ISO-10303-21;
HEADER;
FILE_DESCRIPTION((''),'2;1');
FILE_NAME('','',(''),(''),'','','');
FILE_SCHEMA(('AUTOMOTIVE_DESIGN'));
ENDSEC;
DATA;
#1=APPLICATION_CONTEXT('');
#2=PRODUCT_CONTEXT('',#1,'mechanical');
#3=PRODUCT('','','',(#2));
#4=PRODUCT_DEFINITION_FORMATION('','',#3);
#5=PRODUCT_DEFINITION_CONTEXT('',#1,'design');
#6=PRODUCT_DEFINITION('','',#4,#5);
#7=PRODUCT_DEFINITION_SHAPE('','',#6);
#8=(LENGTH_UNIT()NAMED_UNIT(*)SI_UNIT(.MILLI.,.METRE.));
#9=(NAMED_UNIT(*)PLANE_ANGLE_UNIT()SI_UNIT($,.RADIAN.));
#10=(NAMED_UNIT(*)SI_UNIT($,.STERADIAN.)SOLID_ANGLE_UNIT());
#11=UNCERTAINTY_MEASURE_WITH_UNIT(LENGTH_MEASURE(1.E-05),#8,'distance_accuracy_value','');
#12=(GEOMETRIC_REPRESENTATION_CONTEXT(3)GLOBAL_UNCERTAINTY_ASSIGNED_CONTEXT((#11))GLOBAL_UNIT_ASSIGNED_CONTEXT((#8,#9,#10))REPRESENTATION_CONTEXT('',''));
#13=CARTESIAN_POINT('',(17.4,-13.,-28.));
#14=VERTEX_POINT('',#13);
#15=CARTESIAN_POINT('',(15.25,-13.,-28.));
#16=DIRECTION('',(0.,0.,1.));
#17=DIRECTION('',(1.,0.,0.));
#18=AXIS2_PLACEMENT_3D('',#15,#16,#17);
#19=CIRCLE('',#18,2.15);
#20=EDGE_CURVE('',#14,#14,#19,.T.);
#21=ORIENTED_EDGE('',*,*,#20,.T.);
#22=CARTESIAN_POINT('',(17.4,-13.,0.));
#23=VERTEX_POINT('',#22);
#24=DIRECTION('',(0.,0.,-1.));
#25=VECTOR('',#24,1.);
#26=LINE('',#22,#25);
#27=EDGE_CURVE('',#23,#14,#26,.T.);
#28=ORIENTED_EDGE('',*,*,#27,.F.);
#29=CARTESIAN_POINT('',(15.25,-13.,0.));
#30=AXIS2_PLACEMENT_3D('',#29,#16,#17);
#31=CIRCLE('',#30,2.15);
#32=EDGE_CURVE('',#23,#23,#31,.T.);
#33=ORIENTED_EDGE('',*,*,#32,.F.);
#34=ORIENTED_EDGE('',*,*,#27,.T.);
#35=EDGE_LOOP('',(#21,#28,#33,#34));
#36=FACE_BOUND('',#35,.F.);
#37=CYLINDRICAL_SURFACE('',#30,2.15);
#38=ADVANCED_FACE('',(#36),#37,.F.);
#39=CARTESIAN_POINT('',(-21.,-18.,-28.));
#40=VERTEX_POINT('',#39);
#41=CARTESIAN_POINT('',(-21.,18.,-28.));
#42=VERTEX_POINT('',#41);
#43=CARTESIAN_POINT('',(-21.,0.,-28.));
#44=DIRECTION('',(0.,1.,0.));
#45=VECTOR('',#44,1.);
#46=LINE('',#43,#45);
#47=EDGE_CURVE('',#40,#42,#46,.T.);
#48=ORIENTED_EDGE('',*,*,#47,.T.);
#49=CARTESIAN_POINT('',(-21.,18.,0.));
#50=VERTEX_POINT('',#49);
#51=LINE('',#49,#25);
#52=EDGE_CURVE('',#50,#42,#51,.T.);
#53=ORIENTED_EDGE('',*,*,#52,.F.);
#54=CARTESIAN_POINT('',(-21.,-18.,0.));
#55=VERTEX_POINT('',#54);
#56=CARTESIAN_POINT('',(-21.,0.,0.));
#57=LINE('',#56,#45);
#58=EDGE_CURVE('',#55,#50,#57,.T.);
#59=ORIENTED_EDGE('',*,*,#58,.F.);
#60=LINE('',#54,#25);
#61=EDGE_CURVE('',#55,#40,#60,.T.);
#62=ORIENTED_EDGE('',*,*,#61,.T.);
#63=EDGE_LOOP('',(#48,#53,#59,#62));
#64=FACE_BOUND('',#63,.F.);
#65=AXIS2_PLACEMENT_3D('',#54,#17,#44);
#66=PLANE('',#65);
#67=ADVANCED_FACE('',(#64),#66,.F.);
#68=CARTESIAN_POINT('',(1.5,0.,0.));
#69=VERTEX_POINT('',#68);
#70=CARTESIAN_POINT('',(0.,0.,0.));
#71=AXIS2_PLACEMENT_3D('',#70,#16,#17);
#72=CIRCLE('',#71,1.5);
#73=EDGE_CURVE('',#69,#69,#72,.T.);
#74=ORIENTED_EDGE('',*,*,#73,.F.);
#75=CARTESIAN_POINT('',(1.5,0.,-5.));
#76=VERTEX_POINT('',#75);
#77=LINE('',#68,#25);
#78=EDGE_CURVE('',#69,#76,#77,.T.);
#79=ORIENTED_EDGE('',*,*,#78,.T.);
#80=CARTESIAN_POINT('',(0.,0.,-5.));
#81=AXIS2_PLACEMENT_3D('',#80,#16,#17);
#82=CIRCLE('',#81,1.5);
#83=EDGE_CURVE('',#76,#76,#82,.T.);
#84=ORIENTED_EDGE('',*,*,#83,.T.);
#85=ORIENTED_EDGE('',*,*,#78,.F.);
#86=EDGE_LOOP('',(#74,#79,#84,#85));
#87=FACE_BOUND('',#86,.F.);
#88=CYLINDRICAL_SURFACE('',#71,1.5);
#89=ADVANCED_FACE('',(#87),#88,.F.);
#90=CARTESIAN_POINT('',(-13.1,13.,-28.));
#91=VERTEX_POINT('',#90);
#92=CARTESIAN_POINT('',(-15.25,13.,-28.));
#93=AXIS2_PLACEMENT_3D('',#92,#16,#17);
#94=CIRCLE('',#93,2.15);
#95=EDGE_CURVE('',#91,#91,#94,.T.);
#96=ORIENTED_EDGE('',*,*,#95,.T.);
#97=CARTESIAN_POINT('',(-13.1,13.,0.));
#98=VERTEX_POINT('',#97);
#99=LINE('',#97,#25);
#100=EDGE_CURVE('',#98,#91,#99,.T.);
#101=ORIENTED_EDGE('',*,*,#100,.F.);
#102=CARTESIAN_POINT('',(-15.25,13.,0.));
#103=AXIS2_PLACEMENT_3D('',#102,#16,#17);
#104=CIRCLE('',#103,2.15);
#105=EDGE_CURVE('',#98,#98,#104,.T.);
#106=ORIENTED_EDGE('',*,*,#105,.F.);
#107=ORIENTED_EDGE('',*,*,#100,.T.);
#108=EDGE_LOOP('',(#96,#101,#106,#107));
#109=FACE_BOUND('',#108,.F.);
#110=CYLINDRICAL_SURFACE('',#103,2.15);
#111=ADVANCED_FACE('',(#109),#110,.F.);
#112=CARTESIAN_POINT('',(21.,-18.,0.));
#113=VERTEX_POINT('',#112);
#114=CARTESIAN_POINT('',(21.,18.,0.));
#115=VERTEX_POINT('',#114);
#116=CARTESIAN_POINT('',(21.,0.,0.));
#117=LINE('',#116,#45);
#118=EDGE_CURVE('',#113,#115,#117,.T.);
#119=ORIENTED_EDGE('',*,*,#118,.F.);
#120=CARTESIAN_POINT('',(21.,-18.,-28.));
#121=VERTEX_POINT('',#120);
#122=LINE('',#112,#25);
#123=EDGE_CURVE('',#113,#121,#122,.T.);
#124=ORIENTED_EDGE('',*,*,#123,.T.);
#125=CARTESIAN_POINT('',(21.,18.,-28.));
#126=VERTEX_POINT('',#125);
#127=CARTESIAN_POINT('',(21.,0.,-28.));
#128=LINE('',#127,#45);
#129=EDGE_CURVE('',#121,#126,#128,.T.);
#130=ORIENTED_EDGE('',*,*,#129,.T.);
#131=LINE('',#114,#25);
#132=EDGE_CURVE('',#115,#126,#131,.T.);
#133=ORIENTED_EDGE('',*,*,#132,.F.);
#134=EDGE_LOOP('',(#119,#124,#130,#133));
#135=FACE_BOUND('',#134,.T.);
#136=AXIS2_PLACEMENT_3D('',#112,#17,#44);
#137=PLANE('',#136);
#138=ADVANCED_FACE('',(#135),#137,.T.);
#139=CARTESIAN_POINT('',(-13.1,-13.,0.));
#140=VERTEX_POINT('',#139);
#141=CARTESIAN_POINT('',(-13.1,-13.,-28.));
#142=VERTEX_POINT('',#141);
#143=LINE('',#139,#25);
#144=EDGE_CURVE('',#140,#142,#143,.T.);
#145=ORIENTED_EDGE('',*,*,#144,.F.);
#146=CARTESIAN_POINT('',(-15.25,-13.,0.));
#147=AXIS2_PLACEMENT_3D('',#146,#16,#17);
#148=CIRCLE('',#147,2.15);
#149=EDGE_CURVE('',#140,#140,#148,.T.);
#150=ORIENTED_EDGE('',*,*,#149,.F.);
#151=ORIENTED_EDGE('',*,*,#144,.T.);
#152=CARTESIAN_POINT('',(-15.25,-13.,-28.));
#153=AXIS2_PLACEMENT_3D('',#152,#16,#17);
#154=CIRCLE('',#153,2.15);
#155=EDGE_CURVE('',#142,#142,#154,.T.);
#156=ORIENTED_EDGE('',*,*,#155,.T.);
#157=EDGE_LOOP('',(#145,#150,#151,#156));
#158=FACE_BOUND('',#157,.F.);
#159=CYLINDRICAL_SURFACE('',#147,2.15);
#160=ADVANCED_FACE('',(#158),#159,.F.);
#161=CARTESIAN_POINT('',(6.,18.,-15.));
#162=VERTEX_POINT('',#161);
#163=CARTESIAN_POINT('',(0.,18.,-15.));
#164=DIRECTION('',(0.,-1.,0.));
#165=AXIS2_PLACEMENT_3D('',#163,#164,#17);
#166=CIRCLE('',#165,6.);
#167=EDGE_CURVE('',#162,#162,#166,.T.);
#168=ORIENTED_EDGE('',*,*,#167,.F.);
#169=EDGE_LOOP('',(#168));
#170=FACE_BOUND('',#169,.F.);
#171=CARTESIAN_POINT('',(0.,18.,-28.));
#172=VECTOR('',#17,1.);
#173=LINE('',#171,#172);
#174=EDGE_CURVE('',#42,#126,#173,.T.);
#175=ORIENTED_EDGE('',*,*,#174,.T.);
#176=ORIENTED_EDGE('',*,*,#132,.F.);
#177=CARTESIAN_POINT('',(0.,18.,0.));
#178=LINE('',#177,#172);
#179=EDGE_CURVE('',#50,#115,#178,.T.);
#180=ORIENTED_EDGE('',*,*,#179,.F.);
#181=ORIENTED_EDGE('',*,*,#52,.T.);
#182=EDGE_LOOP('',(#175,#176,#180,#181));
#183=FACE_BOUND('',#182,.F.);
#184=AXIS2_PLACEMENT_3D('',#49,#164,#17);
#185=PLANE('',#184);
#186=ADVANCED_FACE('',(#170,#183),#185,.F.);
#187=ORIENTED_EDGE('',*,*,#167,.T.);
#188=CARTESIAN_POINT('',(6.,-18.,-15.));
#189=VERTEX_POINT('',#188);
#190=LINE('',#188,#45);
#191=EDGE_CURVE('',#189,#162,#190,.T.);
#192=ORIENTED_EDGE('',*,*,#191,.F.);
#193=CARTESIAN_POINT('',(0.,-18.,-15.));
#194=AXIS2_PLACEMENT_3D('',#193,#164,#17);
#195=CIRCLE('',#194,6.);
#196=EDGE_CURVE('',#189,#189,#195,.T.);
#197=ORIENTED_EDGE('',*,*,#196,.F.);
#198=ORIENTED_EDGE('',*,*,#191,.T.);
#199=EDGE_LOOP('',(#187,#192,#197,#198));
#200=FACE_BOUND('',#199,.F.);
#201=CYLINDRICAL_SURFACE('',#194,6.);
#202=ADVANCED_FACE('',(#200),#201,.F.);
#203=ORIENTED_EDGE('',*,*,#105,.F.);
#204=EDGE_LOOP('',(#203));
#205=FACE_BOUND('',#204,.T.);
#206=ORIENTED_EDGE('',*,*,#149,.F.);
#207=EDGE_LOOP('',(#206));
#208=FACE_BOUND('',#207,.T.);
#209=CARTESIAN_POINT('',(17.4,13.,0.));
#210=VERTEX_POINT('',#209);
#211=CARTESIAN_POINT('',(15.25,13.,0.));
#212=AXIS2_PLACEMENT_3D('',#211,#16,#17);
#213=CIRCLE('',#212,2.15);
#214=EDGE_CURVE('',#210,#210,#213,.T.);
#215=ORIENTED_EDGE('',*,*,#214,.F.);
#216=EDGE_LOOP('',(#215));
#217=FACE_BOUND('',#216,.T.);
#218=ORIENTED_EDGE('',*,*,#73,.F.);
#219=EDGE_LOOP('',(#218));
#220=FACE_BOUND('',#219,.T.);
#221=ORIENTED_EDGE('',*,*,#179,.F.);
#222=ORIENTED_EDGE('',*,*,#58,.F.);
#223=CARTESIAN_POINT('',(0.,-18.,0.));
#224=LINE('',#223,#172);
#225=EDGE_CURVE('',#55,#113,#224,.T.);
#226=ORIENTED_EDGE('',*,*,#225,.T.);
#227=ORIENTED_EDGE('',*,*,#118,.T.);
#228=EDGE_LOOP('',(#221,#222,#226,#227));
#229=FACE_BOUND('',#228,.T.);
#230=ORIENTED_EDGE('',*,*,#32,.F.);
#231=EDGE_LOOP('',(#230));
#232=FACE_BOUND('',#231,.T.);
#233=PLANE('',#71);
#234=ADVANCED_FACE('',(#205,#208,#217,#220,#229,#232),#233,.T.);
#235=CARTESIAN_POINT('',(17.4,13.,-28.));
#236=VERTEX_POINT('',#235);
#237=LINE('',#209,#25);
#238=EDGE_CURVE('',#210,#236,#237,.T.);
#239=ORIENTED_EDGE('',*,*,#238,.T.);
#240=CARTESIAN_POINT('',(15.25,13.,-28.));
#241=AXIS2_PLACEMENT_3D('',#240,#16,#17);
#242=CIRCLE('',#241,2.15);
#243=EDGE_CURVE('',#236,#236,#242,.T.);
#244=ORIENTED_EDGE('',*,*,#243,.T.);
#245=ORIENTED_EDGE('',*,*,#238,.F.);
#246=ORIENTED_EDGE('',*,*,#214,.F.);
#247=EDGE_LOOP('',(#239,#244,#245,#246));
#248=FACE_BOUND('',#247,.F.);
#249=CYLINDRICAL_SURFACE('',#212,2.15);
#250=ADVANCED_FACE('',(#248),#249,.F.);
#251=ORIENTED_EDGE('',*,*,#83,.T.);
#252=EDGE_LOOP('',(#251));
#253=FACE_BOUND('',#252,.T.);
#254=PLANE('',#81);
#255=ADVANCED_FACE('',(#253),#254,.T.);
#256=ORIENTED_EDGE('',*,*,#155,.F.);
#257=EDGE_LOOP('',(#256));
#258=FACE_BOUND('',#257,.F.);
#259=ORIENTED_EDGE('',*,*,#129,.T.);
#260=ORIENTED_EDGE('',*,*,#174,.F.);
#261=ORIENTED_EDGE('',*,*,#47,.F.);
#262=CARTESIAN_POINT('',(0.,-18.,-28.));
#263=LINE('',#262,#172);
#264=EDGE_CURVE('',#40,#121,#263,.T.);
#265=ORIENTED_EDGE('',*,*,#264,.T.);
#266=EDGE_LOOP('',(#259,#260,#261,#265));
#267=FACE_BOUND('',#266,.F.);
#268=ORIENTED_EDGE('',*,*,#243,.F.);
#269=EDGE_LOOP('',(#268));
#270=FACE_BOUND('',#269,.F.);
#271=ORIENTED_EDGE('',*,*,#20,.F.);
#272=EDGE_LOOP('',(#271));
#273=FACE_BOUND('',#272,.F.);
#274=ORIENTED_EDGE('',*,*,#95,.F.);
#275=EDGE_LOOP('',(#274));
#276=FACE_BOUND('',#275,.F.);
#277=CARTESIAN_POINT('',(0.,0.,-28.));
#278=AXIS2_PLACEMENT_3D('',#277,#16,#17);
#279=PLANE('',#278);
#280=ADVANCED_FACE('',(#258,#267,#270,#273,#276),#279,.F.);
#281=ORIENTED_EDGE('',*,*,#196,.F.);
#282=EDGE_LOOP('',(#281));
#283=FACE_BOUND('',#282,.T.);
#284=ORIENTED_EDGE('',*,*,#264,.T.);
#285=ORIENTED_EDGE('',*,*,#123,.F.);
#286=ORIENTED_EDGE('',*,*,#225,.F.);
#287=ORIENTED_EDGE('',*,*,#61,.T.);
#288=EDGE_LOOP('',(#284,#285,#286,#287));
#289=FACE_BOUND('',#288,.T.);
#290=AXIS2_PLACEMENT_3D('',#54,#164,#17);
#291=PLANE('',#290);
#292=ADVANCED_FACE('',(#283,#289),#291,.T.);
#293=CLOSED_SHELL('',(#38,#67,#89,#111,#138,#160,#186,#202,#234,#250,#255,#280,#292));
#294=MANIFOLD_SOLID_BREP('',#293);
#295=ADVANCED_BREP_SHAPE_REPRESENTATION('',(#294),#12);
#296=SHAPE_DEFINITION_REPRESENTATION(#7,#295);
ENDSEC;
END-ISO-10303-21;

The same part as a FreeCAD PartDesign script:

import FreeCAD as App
import Part
import Sketcher

V = App.Vector
Q = App.Units.Quantity

doc = App.newDocument("Part")
body = doc.addObject("PartDesign::Body", "Body")

# Sketch on XY plane
sketch1 = doc.addObject("Sketcher::SketchObject", "Sketch")
body.addObject(sketch1)
sketch1.AttachmentSupport = (doc.XY_Plane, [""])
sketch1.MapMode = "FlatFace"
sketch1.addGeometry(Part.LineSegment(V(-21, 18, 0), V(-21, -18, 0)), False)
sketch1.addGeometry(Part.LineSegment(V(-21, -18, 0), V(21, -18, 0)), False)
sketch1.addGeometry(Part.LineSegment(V(21, -18, 0), V(21, 18, 0)), False)
sketch1.addGeometry(Part.LineSegment(V(21, 18, 0), V(-21, 18, 0)), False)
sketch1.addGeometry(Part.Circle(V(-15.2, -13, 0), V(0, 0, 1), 2.1), False)
sketch1.addGeometry(Part.Circle(V(15.2, -13, 0), V(0, 0, 1), 2.1), False)
sketch1.addGeometry(Part.Circle(V(-15.2, 13, 0), V(0, 0, 1), 2.1), False)
sketch1.addGeometry(Part.Circle(V(15.2, 13, 0), V(0, 0, 1), 2.1), False)
sketch1.addConstraint(Sketcher.Constraint("Coincident", 0, 2, 1, 1))
sketch1.addConstraint(Sketcher.Constraint("Coincident", 1, 2, 2, 1))
sketch1.addConstraint(Sketcher.Constraint("Coincident", 2, 2, 3, 1))
sketch1.addConstraint(Sketcher.Constraint("Coincident", 3, 2, 0, 1))
sketch1.addConstraint(Sketcher.Constraint("Vertical", 0))
sketch1.addConstraint(Sketcher.Constraint("Horizontal", 1))
sketch1.addConstraint(Sketcher.Constraint("Vertical", 2))
sketch1.addConstraint(Sketcher.Constraint("Horizontal", 3))
sketch1.addConstraint(Sketcher.Constraint("Equal", 4, 5))
sketch1.addConstraint(Sketcher.Constraint("Equal", 5, 6))
sketch1.addConstraint(Sketcher.Constraint("Equal", 6, 7))
sketch1.addConstraint(Sketcher.Constraint("Symmetric", 5, 3, 6, 3, -1, 1))
sketch1.addConstraint(Sketcher.Constraint("Symmetric", 4, 3, 7, 3, -1, 1))
sketch1.addConstraint(Sketcher.Constraint("Symmetric", 0, 2, 2, 2, -1, 1))
sketch1.addConstraint(Sketcher.Constraint("Symmetric", 4, 3, 5, 3, -2))
sketch1.addConstraint(Sketcher.Constraint("Diameter", 4, Q("4.3 mm")))
sketch1.addConstraint(Sketcher.Constraint("DistanceX", 1, 1, 1, 2, Q("42 mm")))
sketch1.addConstraint(Sketcher.Constraint("DistanceY", 0, 2, 0, 1, Q("36 mm")))
sketch1.addConstraint(Sketcher.Constraint("DistanceY", 4, 3, -1, 1, Q("13 mm")))
sketch1.addConstraint(Sketcher.Constraint("DistanceX", 4, 3, 5, 3, Q("30.5 mm")))
pad1 = doc.addObject("PartDesign::Pad", "Pad")
body.addObject(pad1)
pad1.Profile = sketch1
pad1.Length = 28
pad1.Reversed = True

# Sketch on XZ plane
sketch2 = doc.addObject("Sketcher::SketchObject", "Sketch001")
body.addObject(sketch2)
sketch2.AttachmentSupport = (doc.XZ_Plane, [""])
sketch2.MapMode = "FlatFace"
sketch2.AttachmentOffset = App.Placement(V(0, 0, 18), App.Rotation())
sketch2.addGeometry(Part.Circle(V(0, -15, 0), V(0, 0, 1), 6), False)
sketch2.addConstraint(Sketcher.Constraint("PointOnObject", 0, 3, -2))
sketch2.addConstraint(Sketcher.Constraint("Diameter", 0, Q("12 mm")))
sketch2.addConstraint(Sketcher.Constraint("DistanceY", 0, 3, -1, 1, Q("15 mm")))
pocket1 = doc.addObject("PartDesign::Pocket", "Pocket")
body.addObject(pocket1)
pocket1.Profile = sketch2
pocket1.Length = 36

# Sketch on XY plane
sketch3 = doc.addObject("Sketcher::SketchObject", "Sketch002")
body.addObject(sketch3)
sketch3.AttachmentSupport = (doc.XY_Plane, [""])
sketch3.MapMode = "FlatFace"
sketch3.addGeometry(Part.Circle(V(0, 0, 0), V(0, 0, 1), 1.5), False)
sketch3.addConstraint(Sketcher.Constraint("Coincident", 0, 3, -1, 1))
sketch3.addConstraint(Sketcher.Constraint("Diameter", 0, Q("3 mm")))
pocket2 = doc.addObject("PartDesign::Pocket", "Pocket001")
body.addObject(pocket2)
pocket2.Profile = sketch3
pocket2.Length = 5

doc.recompute()
